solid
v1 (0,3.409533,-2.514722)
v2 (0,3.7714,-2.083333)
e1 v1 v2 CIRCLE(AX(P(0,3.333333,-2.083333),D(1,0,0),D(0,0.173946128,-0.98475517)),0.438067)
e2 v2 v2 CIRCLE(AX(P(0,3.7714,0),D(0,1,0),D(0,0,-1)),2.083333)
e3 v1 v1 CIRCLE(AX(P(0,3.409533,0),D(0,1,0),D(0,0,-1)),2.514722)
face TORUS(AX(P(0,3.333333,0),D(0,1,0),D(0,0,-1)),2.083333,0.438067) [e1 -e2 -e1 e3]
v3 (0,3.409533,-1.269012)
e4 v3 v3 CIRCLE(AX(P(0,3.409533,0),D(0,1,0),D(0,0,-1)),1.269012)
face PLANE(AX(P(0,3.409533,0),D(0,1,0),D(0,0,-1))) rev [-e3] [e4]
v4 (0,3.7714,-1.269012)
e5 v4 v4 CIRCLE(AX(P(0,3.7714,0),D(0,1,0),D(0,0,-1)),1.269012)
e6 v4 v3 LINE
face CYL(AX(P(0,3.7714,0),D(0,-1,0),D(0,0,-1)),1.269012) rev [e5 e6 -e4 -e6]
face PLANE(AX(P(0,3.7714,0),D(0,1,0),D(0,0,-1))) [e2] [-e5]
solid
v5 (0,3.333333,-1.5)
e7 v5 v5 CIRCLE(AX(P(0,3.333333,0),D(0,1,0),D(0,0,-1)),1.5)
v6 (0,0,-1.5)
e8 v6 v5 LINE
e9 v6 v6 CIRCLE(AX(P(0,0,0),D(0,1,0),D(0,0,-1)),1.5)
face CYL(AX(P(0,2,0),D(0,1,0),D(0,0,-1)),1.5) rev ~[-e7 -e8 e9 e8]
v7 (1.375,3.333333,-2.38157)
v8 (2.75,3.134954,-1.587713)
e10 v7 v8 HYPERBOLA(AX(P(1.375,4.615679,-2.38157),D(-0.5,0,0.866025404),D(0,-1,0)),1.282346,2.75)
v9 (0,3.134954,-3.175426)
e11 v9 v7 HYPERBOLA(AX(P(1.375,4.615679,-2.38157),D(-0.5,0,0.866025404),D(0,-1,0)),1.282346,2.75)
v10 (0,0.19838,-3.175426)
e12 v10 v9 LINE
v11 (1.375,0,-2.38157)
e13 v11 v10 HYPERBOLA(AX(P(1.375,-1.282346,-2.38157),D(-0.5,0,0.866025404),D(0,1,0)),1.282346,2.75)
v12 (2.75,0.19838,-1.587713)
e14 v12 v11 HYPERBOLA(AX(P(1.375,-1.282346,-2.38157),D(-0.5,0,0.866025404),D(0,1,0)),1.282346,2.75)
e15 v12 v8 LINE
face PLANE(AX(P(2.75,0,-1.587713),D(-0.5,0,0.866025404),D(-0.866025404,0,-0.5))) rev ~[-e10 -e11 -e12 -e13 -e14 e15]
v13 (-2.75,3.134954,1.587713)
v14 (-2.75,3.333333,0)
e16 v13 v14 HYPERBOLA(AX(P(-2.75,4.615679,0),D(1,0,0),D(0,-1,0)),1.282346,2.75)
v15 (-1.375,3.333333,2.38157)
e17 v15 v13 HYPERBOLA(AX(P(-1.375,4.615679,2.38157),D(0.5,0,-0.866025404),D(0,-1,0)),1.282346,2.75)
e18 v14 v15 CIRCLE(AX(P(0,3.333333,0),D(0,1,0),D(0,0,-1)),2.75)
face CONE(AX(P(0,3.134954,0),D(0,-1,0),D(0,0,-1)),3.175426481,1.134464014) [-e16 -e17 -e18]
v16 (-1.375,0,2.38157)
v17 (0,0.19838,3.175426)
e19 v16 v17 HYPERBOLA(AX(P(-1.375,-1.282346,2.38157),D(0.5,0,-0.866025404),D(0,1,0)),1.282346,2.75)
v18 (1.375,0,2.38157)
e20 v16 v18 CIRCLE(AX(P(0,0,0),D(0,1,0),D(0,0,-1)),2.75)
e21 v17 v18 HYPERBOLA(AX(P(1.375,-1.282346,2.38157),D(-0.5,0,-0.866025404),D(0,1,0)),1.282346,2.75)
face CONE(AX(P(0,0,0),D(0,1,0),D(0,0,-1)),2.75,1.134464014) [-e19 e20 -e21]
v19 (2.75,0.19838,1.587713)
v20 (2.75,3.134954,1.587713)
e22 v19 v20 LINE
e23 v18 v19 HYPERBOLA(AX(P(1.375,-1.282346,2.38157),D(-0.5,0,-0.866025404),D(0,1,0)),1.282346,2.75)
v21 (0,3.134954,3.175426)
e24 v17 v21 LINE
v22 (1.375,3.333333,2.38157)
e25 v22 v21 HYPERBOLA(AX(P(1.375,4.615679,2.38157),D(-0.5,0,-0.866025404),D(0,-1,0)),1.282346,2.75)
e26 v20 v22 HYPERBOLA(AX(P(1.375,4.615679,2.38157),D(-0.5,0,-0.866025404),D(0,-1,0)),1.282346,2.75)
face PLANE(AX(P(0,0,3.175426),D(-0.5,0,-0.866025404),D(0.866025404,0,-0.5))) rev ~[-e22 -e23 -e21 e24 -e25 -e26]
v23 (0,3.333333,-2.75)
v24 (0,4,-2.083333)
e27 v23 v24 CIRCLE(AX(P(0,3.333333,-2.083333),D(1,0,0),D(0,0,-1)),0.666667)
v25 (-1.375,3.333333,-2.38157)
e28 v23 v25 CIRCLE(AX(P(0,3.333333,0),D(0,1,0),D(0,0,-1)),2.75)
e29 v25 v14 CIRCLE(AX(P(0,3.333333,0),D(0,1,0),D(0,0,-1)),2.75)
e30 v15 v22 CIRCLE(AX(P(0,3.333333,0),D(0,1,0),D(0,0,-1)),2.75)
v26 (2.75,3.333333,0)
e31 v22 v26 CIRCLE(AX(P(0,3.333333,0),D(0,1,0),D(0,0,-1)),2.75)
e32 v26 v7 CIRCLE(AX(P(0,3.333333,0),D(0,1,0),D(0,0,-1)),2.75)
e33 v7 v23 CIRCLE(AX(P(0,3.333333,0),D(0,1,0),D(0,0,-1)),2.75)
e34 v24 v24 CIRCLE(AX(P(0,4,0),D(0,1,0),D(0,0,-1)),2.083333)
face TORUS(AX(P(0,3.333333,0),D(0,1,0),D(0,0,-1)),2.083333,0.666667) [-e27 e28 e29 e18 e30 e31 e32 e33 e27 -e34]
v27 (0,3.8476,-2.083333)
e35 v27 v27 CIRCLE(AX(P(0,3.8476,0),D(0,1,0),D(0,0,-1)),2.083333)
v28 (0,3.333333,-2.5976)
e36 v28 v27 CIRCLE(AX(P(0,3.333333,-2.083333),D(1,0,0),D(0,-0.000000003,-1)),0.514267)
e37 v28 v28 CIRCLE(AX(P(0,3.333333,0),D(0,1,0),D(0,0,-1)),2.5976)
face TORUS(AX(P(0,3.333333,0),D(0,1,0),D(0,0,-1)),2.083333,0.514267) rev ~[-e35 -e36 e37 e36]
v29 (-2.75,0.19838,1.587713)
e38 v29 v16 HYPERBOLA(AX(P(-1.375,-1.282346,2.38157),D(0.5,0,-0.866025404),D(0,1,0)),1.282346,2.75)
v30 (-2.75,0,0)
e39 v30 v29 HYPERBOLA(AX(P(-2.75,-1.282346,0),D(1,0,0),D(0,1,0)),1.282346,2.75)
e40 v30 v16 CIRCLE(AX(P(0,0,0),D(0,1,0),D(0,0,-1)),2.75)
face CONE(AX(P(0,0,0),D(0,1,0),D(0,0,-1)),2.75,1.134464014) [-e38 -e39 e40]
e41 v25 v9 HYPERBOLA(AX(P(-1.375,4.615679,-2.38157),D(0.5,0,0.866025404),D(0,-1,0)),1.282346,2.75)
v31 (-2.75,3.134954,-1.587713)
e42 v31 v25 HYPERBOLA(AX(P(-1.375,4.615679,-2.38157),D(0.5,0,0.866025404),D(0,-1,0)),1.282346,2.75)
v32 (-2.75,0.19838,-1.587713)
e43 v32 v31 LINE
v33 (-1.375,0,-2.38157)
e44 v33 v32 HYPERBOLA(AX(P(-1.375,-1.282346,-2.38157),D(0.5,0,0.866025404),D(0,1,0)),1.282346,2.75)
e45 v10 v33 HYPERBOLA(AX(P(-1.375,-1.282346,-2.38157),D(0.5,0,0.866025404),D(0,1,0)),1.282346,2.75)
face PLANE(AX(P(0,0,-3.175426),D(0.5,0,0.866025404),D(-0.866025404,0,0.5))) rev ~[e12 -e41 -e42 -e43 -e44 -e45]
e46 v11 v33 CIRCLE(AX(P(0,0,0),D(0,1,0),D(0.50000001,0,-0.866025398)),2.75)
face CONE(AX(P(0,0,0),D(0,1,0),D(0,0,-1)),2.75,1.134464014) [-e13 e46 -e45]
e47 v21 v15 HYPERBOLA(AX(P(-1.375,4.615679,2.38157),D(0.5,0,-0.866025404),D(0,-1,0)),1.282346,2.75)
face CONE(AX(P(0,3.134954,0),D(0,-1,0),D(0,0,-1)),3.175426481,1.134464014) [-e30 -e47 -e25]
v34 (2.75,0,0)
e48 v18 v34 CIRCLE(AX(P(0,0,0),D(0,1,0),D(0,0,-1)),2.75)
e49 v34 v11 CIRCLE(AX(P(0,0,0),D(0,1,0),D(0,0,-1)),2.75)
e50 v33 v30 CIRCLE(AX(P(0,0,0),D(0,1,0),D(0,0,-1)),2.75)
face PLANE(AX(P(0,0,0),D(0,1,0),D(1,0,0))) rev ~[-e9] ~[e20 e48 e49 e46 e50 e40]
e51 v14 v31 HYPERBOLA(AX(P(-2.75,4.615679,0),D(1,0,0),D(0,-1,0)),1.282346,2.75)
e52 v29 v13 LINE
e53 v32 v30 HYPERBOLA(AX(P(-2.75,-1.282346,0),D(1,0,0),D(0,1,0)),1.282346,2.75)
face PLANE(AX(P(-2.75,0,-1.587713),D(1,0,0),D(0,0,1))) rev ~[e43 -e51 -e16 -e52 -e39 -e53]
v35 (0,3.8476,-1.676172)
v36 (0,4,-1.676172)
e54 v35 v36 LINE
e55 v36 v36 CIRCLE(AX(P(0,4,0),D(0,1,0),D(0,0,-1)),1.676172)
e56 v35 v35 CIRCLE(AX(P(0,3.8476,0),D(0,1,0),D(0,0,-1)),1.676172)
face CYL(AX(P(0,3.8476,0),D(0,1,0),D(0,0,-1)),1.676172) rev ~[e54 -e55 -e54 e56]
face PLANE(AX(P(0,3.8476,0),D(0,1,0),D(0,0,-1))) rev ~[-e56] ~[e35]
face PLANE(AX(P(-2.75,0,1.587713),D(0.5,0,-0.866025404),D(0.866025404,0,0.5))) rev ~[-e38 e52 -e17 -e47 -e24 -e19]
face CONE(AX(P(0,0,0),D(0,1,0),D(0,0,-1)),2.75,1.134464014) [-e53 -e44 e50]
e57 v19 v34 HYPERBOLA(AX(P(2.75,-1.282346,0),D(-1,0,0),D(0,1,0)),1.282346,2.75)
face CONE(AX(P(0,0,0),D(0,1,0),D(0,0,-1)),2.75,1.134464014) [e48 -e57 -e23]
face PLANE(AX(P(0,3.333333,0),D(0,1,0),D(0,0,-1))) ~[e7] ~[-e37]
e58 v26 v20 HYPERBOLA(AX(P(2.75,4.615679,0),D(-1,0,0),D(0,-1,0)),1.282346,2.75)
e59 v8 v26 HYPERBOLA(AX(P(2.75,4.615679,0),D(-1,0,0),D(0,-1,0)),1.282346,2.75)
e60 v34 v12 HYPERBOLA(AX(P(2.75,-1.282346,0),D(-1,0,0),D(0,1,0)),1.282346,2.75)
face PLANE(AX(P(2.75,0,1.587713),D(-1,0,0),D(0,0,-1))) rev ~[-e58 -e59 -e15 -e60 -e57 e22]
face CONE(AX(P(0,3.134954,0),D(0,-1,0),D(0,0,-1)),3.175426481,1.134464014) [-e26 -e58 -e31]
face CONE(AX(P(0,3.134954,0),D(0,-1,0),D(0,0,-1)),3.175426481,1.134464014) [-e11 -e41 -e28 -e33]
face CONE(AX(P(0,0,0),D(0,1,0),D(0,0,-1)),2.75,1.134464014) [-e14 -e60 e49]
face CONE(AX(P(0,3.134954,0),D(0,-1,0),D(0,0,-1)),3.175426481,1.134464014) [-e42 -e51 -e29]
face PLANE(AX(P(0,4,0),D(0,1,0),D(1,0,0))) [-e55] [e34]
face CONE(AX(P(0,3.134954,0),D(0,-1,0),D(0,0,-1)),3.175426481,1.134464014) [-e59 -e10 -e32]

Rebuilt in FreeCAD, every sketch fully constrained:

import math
import FreeCAD as App
import Part
import Sketcher
from FreeCAD import Vector
Q = App.Units.Quantity

doc = App.newDocument("Part")
body = doc.addObject("PartDesign::Body", "Body")

sketch1 = doc.addObject("Sketcher::SketchObject", "Sketch")
body.addObject(sketch1)
sketch1.AttachmentSupport = (doc.XZ_Plane, [""])
sketch1.MapMode = "FlatFace"
sketch1.addGeometry(Part.LineSegment(Vector(0, -3.175426, 0), Vector(-2.75, -1.587713, 0)), False)
sketch1.addGeometry(Part.LineSegment(Vector(-2.75, -1.587713, 0), Vector(-2.75, 1.587713, 0)), False)
sketch1.addGeometry(Part.LineSegment(Vector(-2.75, 1.587713, 0), Vector(0, 3.175426, 0)), False)
sketch1.addGeometry(Part.LineSegment(Vector(0, 3.175426, 0), Vector(2.75, 1.587713, 0)), False)
sketch1.addGeometry(Part.LineSegment(Vector(2.75, 1.587713, 0), Vector(2.75, -1.587713, 0)), False)
sketch1.addGeometry(Part.LineSegment(Vector(2.75, -1.587713, 0), Vector(0, -3.175426, 0)), False)
sketch1.addConstraint(Sketcher.Constraint("Coincident", 0, 2, 1, 1))
sketch1.addConstraint(Sketcher.Constraint("Coincident", 1, 2, 2, 1))
sketch1.addConstraint(Sketcher.Constraint("Coincident", 2, 2, 3, 1))
sketch1.addConstraint(Sketcher.Constraint("Coincident", 3, 2, 4, 1))
sketch1.addConstraint(Sketcher.Constraint("Coincident", 4, 2, 5, 1))
sketch1.addConstraint(Sketcher.Constraint("Coincident", 5, 2, 0, 1))
sketch1.addConstraint(Sketcher.Constraint("Vertical", 1))
sketch1.addConstraint(Sketcher.Constraint("Vertical", 4))
sketch1.addConstraint(Sketcher.Constraint("Symmetric", 0, 2, 3, 2, -1, 1))
sketch1.addConstraint(Sketcher.Constraint("Symmetric", 2, 2, 5, 2, -1, 1))
sketch1.addConstraint(Sketcher.Constraint("PointOnObject", 2, 2, -2))
sketch1.addConstraint(Sketcher.Constraint("Parallel", 2, 5))
sketch1.addConstraint(Sketcher.Constraint("Horizontal", 1, 2, 3, 2))
sketch1.addConstraint(Sketcher.Constraint("Angle", 0, Q("150 deg")))
sketch1.addConstraint(Sketcher.Constraint("DistanceX", 1, 2, 3, 2, 5.5))
sketch1.addConstraint(Sketcher.Constraint("DistanceY", 1, 1, 1, 2, 3.175426))
pad1 = doc.addObject("PartDesign::Pad", "Pad")
body.addObject(pad1)
pad1.Profile = sketch1
pad1.Length = 4
pad1.Reversed = True

sketch2 = doc.addObject("Sketcher::SketchObject", "Sketch001")
body.addObject(sketch2)
sketch2.AttachmentSupport = (doc.YZ_Plane, [""])
sketch2.MapMode = "FlatFace"
sketch2.addGeometry(Part.LineSegment(Vector(4, -1.5, 0), Vector(4, 0, 0)), False)
sketch2.addGeometry(Part.LineSegment(Vector(4, 0, 0), Vector(0, 0, 0)), False)
sketch2.addGeometry(Part.LineSegment(Vector(0, 0, 0), Vector(0, -1.5, 0)), False)
sketch2.addGeometry(Part.LineSegment(Vector(0, -1.5, 0), Vector(0.107712, -1.269012, 0)), False)
sketch2.addGeometry(Part.LineSegment(Vector(0.107712, -1.269012, 0), Vector(3.892288, -1.269012, 0)), False)
sketch2.addGeometry(Part.LineSegment(Vector(3.892288, -1.269012, 0), Vector(4, -1.5, 0)), False)
sketch2.addConstraint(Sketcher.Constraint("Coincident", 0, 2, 1, 1))
sketch2.addConstraint(Sketcher.Constraint("Coincident", 1, 2, 2, 1))
sketch2.addConstraint(Sketcher.Constraint("Coincident", 2, 2, 3, 1))
sketch2.addConstraint(Sketcher.Constraint("Coincident", 3, 2, 4, 1))
sketch2.addConstraint(Sketcher.Constraint("Coincident", 4, 2, 5, 1))
sketch2.addConstraint(Sketcher.Constraint("Coincident", 5, 2, 0, 1))
sketch2.addConstraint(Sketcher.Constraint("Vertical", 0))
sketch2.addConstraint(Sketcher.Constraint("Horizontal", 1))
sketch2.addConstraint(Sketcher.Constraint("Vertical", 2))
sketch2.addConstraint(Sketcher.Constraint("Horizontal", 4))
sketch2.addConstraint(Sketcher.Constraint("Coincident", 1, 2, -1, 1))
sketch2.addConstraint(Sketcher.Constraint("Horizontal", 2, 2, 5, 2))
sketch2.addConstraint(Sketcher.Constraint("Equal", 3, 5))
sketch2.addConstraint(Sketcher.Constraint("DistanceX", 1, 2, 1, 1, 4.0))
sketch2.addConstraint(Sketcher.Constraint("Angle", 3, Q("65 deg")))
sketch2.addConstraint(Sketcher.Constraint("DistanceY", 0, 1, 0, 2, 1.5))
sketch2.addConstraint(Sketcher.Constraint("DistanceX", 4, 1, 4, 2, 3.784577))
groove = doc.addObject("PartDesign::Groove", "Groove")
body.addObject(groove)
groove.Profile = sketch2
groove.ReferenceAxis = (sketch2, ["H_Axis"])
groove.Angle = 360
body2 = doc.addObject("PartDesign::Body", "Body001")

sketch3 = doc.addObject("Sketcher::SketchObject", "Sketch002")
body2.addObject(sketch3)
sketch3.AttachmentSupport = (doc.getObject("YZ_Plane001"), [""])
sketch3.MapMode = "FlatFace"
sketch3.addGeometry(Part.LineSegment(Vector(4, 0, 0), Vector(0, 0, 0)), False)
sketch3.addGeometry(Part.LineSegment(Vector(0, 0, 0), Vector(0, -1.5, 0)), False)
sketch3.addGeometry(Part.LineSegment(Vector(0, -1.5, 0), Vector(4, -1.5, 0)), False)
sketch3.addGeometry(Part.LineSegment(Vector(4, -1.5, 0), Vector(4, 0, 0)), False)
sketch3.addConstraint(Sketcher.Constraint("Coincident", 0, 2, 1, 1))
sketch3.addConstraint(Sketcher.Constraint("Coincident", 1, 2, 2, 1))
sketch3.addConstraint(Sketcher.Constraint("Coincident", 2, 2, 3, 1))
sketch3.addConstraint(Sketcher.Constraint("Coincident", 3, 2, 0, 1))
sketch3.addConstraint(Sketcher.Constraint("Horizontal", 0))
sketch3.addConstraint(Sketcher.Constraint("Vertical", 1))
sketch3.addConstraint(Sketcher.Constraint("Horizontal", 2))
sketch3.addConstraint(Sketcher.Constraint("Vertical", 3))
sketch3.addConstraint(Sketcher.Constraint("Coincident", 0, 2, -1, 1))
sketch3.addConstraint(Sketcher.Constraint("DistanceX", 0, 2, 0, 1, 4.0))
sketch3.addConstraint(Sketcher.Constraint("DistanceY", 1, 2, 1, 1, 1.5))
revolution = doc.addObject("PartDesign::Revolution", "Revolution")
body2.addObject(revolution)
revolution.Profile = sketch3
revolution.ReferenceAxis = (sketch3, ["H_Axis"])
revolution.Angle = 360
doc.recompute()

boolean = doc.addObject("PartDesign::Boolean", "Boolean")
body.addObject(boolean)
boolean.Type = "Cut"
boolean.addObjects([body2])

sketch4 = doc.addObject("Sketcher::SketchObject", "Sketch003")
body.addObject(sketch4)
sketch4.AttachmentSupport = (doc.YZ_Plane, [""])
sketch4.MapMode = "FlatFace"
sketch4.addGeometry(Part.LineSegment(Vector(0, -2.75, 0), Vector(0, 0, 0)), False)
sketch4.addGeometry(Part.LineSegment(Vector(0, 0, 0), Vector(-1.27, 0, 0)), False)
sketch4.addGeometry(Part.LineSegment(Vector(-1.27, 0, 0), Vector(-1.27, -4.445426, 0)), False)
sketch4.addGeometry(Part.LineSegment(Vector(-1.27, -4.445426, 0), Vector(5.27, -4.445426, 0)), False)
sketch4.addGeometry(Part.LineSegment(Vector(5.27, -4.445426, 0), Vector(5.27, -2.083333, 0)), False)
sketch4.addGeometry(Part.LineSegment(Vector(5.27, -2.083333, 0), Vector(4, -2.083333, 0)), False)
sketch4.addGeometry(Part.ArcOfCircle(Part.Circle(Vector(3.333333, -2.083333, 0), Vector(0, 0, 1), 0.666667), math.radians(-90), math.radians(0)), False)
sketch4.addGeometry(Part.LineSegment(Vector(3.333333, -2.75, 0), Vector(3.134954, -3.175426, 0)), False)
sketch4.addGeometry(Part.LineSegment(Vector(3.134954, -3.175426, 0), Vector(0.19838, -3.175426, 0)), False)
sketch4.addGeometry(Part.LineSegment(Vector(0.19838, -3.175426, 0), Vector(0, -2.75, 0)), False)
sketch4.addConstraint(Sketcher.Constraint("Coincident", 0, 2, 1, 1))
sketch4.addConstraint(Sketcher.Constraint("Coincident", 1, 2, 2, 1))
sketch4.addConstraint(Sketcher.Constraint("Coincident", 2, 2, 3, 1))
sketch4.addConstraint(Sketcher.Constraint("Coincident", 3, 2, 4, 1))
sketch4.addConstraint(Sketcher.Constraint("Coincident", 4, 2, 5, 1))
sketch4.addConstraint(Sketcher.Constraint("Coincident", 5, 2, 6, 2))
sketch4.addConstraint(Sketcher.Constraint("Coincident", 6, 1, 7, 1))
sketch4.addConstraint(Sketcher.Constraint("Coincident", 7, 2, 8, 1))
sketch4.addConstraint(Sketcher.Constraint("Coincident", 8, 2, 9, 1))
sketch4.addConstraint(Sketcher.Constraint("Coincident", 9, 2, 0, 1))
sketch4.addConstraint(Sketcher.Constraint("Vertical", 0))
sketch4.addConstraint(Sketcher.Constraint("Horizontal", 1))
sketch4.addConstraint(Sketcher.Constraint("Vertical", 2))
sketch4.addConstraint(Sketcher.Constraint("Horizontal", 3))
sketch4.addConstraint(Sketcher.Constraint("Vertical", 4))
sketch4.addConstraint(Sketcher.Constraint("Horizontal", 5))
sketch4.addConstraint(Sketcher.Constraint("Horizontal", 8))
sketch4.addConstraint(Sketcher.Constraint("Coincident", 0, 2, -1, 1))
sketch4.addConstraint(Sketcher.Constraint("Horizontal", 6, 3, 4, 2))
sketch4.addConstraint(Sketcher.Constraint("Horizontal", 6, 1, 9, 2))
sketch4.addConstraint(Sketcher.Constraint("Equal", 1, 5))
sketch4.addConstraint(Sketcher.Constraint("Equal", 7, 9))
sketch4.addConstraint(Sketcher.Constraint("Angle", 7, Q("-115 deg")))
sketch4.addConstraint(Sketcher.Constraint("DistanceX", -1, 1, 5, 2, 4.0))
sketch4.addConstraint(Sketcher.Constraint("DistanceX", 1, 2, 1, 1, 1.27))
sketch4.addConstraint(Sketcher.Constraint("DistanceY", 0, 1, 0, 2, 2.75))
sketch4.addConstraint(Sketcher.Constraint("DistanceY", 3, 2, 7, 2, 1.27))
sketch4.addConstraint(Sketcher.Constraint("Radius", 6, 0.666667))
sketch4.addConstraint(Sketcher.Constraint("DistanceX", 8, 2, 8, 1, 2.936574))
sketch4.addConstraint(Sketcher.Constraint("DistanceY", 2, 2, 2, 1, 4.445426))
groove2 = doc.addObject("PartDesign::Groove", "Groove001")
body.addObject(groove2)
groove2.Profile = sketch4
groove2.ReferenceAxis = (sketch4, ["H_Axis"])
groove2.Angle = 360

sketch5 = doc.addObject("Sketcher::SketchObject", "Sketch004")
body.addObject(sketch5)
sketch5.AttachmentSupport = (doc.YZ_Plane, [""])
sketch5.MapMode = "FlatFace"
sketch5.addGeometry(Part.LineSegment(Vector(3.333333, 0, 0), Vector(3.333333, -2.5976, 0)), False)
sketch5.addGeometry(Part.ArcOfCircle(Part.Circle(Vector(3.333333, -2.083333, 0), Vector(0, 0, 1), 0.514267), math.radians(-90), math.radians(0)), False)
sketch5.addGeometry(Part.LineSegment(Vector(3.8476, -2.083333, 0), Vector(3.8476, -1.676172, 0)), False)
sketch5.addGeometry(Part.LineSegment(Vector(3.8476, -1.676172, 0), Vector(5.27, -1.676172, 0)), False)
sketch5.addGeometry(Part.LineSegment(Vector(5.27, -1.676172, 0), Vector(5.27, 0, 0)), False)
sketch5.addGeometry(Part.LineSegment(Vector(5.27, 0, 0), Vector(3.333333, 0, 0)), False)
sketch5.addConstraint(Sketcher.Constraint("Coincident", 0, 2, 1, 1))
sketch5.addConstraint(Sketcher.Constraint("Tangent", 1, 2, 2, 1))
sketch5.addConstraint(Sketcher.Constraint("Coincident", 2, 2, 3, 1))
sketch5.addConstraint(Sketcher.Constraint("Coincident", 3, 2, 4, 1))
sketch5.addConstraint(Sketcher.Constraint("Coincident", 4, 2, 5, 1))
sketch5.addConstraint(Sketcher.Constraint("Coincident", 5, 2, 0, 1))
sketch5.addConstraint(Sketcher.Constraint("Vertical", 0))
sketch5.addConstraint(Sketcher.Constraint("Vertical", 2))
sketch5.addConstraint(Sketcher.Constraint("Horizontal", 3))
sketch5.addConstraint(Sketcher.Constraint("Vertical", 4))
sketch5.addConstraint(Sketcher.Constraint("Horizontal", 5))
sketch5.addConstraint(Sketcher.Constraint("PointOnObject", 4, 2, -1))
sketch5.addConstraint(Sketcher.Constraint("Vertical", 1, 3, 0, 2))
sketch5.addConstraint(Sketcher.Constraint("DistanceX", -1, 1, 3, 2, 5.27))
sketch5.addConstraint(Sketcher.Constraint("DistanceX", 3, 1, 3, 2, 1.4224))
sketch5.addConstraint(Sketcher.Constraint("DistanceY", 0, 2, 0, 1, 2.5976))
sketch5.addConstraint(Sketcher.Constraint("Radius", 1, 0.514267))
sketch5.addConstraint(Sketcher.Constraint("DistanceY", 2, 1, 2, 2, 0.407161))
groove3 = doc.addObject("PartDesign::Groove", "Groove002")
body.addObject(groove3)
groove3.Profile = sketch5
groove3.ReferenceAxis = (sketch5, ["H_Axis"])
groove3.Angle = 360
body3 = doc.addObject("PartDesign::Body", "Body002")

sketch6 = doc.addObject("Sketcher::SketchObject", "Sketch005")
body3.addObject(sketch6)
sketch6.AttachmentSupport = (doc.getObject("YZ_Plane002"), [""])
sketch6.MapMode = "FlatFace"
sketch6.addGeometry(Part.LineSegment(Vector(3.409533, -1.269012, 0), Vector(3.409533, -2.514722, 0)), False)
sketch6.addGeometry(Part.ArcOfCircle(Part.Circle(Vector(3.333333, -2.083333, 0), Vector(0, 0, 1), 0.438067), math.radians(-79.982665), math.radians(0)), False)
sketch6.addGeometry(Part.LineSegment(Vector(3.7714, -2.083333, 0), Vector(3.7714, -1.269012, 0)), False)
sketch6.addGeometry(Part.LineSegment(Vector(3.7714, -1.269012, 0), Vector(3.409533, -1.269012, 0)), False)
sketch6.addConstraint(Sketcher.Constraint("Coincident", 0, 2, 1, 1))
sketch6.addConstraint(Sketcher.Constraint("Tangent", 1, 2, 2, 1))
sketch6.addConstraint(Sketcher.Constraint("Coincident", 2, 2, 3, 1))
sketch6.addConstraint(Sketcher.Constraint("Coincident", 3, 2, 0, 1))
sketch6.addConstraint(Sketcher.Constraint("Vertical", 0))
sketch6.addConstraint(Sketcher.Constraint("Vertical", 2))
sketch6.addConstraint(Sketcher.Constraint("Horizontal", 3))
sketch6.addConstraint(Sketcher.Constraint("Radius", 1, 0.438067))
sketch6.addConstraint(Sketcher.Constraint("DistanceY", 0, 2, 0, 1, 1.24571))
sketch6.addConstraint(Sketcher.Constraint("DistanceY", 2, 1, 2, 2, 0.814322))
sketch6.addConstraint(Sketcher.Constraint("DistanceX", -1, 1, 1, 2, 3.7714))
sketch6.addConstraint(Sketcher.Constraint("DistanceY", 0, 2, -1, 1, 2.514722))
revolution2 = doc.addObject("PartDesign::Revolution", "Revolution001")
body3.addObject(revolution2)
revolution2.Profile = sketch6
revolution2.ReferenceAxis = (sketch6, ["H_Axis"])
revolution2.Angle = 360

doc.recompute()
